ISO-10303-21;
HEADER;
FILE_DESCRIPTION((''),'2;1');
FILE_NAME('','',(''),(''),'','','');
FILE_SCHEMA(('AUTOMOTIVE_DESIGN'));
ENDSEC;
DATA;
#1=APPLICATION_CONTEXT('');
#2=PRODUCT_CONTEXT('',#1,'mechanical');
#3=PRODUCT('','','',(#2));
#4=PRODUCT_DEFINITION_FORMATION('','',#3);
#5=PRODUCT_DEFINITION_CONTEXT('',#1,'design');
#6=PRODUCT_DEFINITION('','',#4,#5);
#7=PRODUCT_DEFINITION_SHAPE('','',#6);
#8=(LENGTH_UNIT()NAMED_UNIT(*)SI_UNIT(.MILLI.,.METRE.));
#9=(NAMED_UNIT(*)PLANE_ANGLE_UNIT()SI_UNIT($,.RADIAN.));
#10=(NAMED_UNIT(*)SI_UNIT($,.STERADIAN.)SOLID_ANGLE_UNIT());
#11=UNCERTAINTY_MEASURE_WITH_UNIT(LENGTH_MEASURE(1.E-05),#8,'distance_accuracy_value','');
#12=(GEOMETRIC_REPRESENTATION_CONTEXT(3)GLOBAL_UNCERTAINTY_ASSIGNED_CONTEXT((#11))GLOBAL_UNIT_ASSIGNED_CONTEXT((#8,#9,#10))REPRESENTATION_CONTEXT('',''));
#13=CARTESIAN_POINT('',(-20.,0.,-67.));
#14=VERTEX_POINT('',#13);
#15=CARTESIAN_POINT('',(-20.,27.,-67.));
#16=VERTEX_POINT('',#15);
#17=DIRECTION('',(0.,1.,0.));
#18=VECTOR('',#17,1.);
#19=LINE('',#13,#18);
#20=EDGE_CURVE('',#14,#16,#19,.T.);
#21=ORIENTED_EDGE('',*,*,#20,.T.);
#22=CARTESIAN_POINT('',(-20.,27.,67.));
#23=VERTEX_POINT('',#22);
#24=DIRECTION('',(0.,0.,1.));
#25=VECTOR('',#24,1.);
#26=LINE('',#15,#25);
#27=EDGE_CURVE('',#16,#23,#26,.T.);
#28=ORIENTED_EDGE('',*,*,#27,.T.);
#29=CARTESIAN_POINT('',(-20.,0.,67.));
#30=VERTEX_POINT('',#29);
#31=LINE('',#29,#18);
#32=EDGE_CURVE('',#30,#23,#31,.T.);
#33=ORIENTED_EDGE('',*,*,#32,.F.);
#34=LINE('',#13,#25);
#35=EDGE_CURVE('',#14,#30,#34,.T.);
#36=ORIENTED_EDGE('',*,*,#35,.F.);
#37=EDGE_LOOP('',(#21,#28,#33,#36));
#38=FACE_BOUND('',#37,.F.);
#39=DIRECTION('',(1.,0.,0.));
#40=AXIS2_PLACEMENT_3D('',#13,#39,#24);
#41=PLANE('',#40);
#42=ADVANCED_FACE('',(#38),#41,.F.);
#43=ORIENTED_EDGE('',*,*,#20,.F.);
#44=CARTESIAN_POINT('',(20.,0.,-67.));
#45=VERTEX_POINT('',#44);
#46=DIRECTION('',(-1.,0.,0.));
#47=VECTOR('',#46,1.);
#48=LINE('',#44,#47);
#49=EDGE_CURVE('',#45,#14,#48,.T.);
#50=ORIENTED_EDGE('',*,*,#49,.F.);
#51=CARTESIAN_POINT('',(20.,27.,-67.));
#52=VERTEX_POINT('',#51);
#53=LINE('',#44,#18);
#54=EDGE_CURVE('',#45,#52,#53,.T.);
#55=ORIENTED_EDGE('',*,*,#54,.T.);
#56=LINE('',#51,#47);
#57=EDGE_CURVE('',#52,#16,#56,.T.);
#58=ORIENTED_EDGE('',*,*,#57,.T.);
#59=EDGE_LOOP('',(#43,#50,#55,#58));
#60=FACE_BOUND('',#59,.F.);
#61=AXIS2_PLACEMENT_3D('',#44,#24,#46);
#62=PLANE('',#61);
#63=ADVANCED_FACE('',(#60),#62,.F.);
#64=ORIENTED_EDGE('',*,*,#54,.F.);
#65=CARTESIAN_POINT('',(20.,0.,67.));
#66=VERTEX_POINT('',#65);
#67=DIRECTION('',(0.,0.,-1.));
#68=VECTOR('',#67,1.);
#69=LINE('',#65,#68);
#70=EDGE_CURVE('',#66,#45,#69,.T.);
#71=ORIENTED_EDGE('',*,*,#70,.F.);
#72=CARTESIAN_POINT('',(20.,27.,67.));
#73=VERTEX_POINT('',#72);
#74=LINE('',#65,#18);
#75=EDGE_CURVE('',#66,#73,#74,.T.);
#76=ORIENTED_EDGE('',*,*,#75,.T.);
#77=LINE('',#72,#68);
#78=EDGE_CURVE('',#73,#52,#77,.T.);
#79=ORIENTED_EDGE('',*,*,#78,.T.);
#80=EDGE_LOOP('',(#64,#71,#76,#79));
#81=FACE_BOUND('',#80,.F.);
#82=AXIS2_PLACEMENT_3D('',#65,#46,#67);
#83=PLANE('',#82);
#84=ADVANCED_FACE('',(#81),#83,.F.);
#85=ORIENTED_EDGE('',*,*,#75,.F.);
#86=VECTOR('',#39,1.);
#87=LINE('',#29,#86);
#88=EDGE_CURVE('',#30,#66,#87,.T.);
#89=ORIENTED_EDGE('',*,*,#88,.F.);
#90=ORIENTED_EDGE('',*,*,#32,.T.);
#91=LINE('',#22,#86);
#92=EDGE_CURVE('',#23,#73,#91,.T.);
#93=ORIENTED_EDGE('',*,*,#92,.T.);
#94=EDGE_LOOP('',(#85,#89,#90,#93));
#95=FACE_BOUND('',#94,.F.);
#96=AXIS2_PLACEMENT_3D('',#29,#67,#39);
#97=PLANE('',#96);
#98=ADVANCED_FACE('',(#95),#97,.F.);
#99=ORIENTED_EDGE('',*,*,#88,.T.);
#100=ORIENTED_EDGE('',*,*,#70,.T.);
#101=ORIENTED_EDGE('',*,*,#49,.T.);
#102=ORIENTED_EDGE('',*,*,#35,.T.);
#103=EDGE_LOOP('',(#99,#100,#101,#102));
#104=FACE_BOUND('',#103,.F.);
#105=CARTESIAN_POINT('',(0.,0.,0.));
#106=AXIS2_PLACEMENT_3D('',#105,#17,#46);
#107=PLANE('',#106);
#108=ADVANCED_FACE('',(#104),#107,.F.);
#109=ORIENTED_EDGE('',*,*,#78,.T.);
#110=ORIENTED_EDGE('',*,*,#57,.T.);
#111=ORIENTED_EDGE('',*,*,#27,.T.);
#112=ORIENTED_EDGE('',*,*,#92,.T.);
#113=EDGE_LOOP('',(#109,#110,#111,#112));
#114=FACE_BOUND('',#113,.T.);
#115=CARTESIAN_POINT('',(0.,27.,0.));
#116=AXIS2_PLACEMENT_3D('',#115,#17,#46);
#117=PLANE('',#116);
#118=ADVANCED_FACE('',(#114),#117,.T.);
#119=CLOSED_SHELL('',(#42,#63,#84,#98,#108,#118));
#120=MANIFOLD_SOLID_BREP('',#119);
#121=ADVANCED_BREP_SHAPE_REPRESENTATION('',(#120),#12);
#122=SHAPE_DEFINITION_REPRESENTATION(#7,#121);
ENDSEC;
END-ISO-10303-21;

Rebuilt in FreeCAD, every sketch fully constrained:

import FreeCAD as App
import Part
import Sketcher
from FreeCAD import Vector
Q = App.Units.Quantity


def add_polygon(sketch, points):
    """Adds a closed chain of lines whose ends are joined by coincident constraints."""
    first, n = sketch.GeometryCount, len(points)
    for a, b in zip(points, points[1:] + points[:1]):
        sketch.addGeometry(Part.LineSegment(App.Vector(*a, 0), App.Vector(*b, 0)), False)
    for i in range(n):
        sketch.addConstraint(Sketcher.Constraint("Coincident", first + i, 2, first + (i + 1) % n, 1))

doc = App.newDocument("Part")
body = doc.addObject("PartDesign::Body", "Body")

sketch1 = body.newObject("Sketcher::SketchObject", "Sketch")
sketch1.AttachmentSupport = (doc.getObject("XZ_Plane"), [""])
sketch1.MapMode = "FlatFace"
add_polygon(sketch1, [(20, 67), (20, -67), (-20, -67), (-20, 67)])
sketch1.addConstraint(Sketcher.Constraint("Vertical", 0))
sketch1.addConstraint(Sketcher.Constraint("Horizontal", 1))
sketch1.addConstraint(Sketcher.Constraint("Vertical", 2))
sketch1.addConstraint(Sketcher.Constraint("Horizontal", 3))
sketch1.addConstraint(Sketcher.Constraint("Symmetric", 0, 2, 2, 2, -1, 1))
sketch1.addConstraint(Sketcher.Constraint("DistanceX", 1, 2, 1, 1, Q("1.5748 in")))
sketch1.addConstraint(Sketcher.Constraint("DistanceY", 0, 2, 0, 1, Q("5.2756 in")))
pad1 = body.newObject("PartDesign::Pad", "Pad")
pad1.Profile = sketch1
pad1.Length = Q("1.0629921 in")
pad1.Reversed = True

doc.recompute()
